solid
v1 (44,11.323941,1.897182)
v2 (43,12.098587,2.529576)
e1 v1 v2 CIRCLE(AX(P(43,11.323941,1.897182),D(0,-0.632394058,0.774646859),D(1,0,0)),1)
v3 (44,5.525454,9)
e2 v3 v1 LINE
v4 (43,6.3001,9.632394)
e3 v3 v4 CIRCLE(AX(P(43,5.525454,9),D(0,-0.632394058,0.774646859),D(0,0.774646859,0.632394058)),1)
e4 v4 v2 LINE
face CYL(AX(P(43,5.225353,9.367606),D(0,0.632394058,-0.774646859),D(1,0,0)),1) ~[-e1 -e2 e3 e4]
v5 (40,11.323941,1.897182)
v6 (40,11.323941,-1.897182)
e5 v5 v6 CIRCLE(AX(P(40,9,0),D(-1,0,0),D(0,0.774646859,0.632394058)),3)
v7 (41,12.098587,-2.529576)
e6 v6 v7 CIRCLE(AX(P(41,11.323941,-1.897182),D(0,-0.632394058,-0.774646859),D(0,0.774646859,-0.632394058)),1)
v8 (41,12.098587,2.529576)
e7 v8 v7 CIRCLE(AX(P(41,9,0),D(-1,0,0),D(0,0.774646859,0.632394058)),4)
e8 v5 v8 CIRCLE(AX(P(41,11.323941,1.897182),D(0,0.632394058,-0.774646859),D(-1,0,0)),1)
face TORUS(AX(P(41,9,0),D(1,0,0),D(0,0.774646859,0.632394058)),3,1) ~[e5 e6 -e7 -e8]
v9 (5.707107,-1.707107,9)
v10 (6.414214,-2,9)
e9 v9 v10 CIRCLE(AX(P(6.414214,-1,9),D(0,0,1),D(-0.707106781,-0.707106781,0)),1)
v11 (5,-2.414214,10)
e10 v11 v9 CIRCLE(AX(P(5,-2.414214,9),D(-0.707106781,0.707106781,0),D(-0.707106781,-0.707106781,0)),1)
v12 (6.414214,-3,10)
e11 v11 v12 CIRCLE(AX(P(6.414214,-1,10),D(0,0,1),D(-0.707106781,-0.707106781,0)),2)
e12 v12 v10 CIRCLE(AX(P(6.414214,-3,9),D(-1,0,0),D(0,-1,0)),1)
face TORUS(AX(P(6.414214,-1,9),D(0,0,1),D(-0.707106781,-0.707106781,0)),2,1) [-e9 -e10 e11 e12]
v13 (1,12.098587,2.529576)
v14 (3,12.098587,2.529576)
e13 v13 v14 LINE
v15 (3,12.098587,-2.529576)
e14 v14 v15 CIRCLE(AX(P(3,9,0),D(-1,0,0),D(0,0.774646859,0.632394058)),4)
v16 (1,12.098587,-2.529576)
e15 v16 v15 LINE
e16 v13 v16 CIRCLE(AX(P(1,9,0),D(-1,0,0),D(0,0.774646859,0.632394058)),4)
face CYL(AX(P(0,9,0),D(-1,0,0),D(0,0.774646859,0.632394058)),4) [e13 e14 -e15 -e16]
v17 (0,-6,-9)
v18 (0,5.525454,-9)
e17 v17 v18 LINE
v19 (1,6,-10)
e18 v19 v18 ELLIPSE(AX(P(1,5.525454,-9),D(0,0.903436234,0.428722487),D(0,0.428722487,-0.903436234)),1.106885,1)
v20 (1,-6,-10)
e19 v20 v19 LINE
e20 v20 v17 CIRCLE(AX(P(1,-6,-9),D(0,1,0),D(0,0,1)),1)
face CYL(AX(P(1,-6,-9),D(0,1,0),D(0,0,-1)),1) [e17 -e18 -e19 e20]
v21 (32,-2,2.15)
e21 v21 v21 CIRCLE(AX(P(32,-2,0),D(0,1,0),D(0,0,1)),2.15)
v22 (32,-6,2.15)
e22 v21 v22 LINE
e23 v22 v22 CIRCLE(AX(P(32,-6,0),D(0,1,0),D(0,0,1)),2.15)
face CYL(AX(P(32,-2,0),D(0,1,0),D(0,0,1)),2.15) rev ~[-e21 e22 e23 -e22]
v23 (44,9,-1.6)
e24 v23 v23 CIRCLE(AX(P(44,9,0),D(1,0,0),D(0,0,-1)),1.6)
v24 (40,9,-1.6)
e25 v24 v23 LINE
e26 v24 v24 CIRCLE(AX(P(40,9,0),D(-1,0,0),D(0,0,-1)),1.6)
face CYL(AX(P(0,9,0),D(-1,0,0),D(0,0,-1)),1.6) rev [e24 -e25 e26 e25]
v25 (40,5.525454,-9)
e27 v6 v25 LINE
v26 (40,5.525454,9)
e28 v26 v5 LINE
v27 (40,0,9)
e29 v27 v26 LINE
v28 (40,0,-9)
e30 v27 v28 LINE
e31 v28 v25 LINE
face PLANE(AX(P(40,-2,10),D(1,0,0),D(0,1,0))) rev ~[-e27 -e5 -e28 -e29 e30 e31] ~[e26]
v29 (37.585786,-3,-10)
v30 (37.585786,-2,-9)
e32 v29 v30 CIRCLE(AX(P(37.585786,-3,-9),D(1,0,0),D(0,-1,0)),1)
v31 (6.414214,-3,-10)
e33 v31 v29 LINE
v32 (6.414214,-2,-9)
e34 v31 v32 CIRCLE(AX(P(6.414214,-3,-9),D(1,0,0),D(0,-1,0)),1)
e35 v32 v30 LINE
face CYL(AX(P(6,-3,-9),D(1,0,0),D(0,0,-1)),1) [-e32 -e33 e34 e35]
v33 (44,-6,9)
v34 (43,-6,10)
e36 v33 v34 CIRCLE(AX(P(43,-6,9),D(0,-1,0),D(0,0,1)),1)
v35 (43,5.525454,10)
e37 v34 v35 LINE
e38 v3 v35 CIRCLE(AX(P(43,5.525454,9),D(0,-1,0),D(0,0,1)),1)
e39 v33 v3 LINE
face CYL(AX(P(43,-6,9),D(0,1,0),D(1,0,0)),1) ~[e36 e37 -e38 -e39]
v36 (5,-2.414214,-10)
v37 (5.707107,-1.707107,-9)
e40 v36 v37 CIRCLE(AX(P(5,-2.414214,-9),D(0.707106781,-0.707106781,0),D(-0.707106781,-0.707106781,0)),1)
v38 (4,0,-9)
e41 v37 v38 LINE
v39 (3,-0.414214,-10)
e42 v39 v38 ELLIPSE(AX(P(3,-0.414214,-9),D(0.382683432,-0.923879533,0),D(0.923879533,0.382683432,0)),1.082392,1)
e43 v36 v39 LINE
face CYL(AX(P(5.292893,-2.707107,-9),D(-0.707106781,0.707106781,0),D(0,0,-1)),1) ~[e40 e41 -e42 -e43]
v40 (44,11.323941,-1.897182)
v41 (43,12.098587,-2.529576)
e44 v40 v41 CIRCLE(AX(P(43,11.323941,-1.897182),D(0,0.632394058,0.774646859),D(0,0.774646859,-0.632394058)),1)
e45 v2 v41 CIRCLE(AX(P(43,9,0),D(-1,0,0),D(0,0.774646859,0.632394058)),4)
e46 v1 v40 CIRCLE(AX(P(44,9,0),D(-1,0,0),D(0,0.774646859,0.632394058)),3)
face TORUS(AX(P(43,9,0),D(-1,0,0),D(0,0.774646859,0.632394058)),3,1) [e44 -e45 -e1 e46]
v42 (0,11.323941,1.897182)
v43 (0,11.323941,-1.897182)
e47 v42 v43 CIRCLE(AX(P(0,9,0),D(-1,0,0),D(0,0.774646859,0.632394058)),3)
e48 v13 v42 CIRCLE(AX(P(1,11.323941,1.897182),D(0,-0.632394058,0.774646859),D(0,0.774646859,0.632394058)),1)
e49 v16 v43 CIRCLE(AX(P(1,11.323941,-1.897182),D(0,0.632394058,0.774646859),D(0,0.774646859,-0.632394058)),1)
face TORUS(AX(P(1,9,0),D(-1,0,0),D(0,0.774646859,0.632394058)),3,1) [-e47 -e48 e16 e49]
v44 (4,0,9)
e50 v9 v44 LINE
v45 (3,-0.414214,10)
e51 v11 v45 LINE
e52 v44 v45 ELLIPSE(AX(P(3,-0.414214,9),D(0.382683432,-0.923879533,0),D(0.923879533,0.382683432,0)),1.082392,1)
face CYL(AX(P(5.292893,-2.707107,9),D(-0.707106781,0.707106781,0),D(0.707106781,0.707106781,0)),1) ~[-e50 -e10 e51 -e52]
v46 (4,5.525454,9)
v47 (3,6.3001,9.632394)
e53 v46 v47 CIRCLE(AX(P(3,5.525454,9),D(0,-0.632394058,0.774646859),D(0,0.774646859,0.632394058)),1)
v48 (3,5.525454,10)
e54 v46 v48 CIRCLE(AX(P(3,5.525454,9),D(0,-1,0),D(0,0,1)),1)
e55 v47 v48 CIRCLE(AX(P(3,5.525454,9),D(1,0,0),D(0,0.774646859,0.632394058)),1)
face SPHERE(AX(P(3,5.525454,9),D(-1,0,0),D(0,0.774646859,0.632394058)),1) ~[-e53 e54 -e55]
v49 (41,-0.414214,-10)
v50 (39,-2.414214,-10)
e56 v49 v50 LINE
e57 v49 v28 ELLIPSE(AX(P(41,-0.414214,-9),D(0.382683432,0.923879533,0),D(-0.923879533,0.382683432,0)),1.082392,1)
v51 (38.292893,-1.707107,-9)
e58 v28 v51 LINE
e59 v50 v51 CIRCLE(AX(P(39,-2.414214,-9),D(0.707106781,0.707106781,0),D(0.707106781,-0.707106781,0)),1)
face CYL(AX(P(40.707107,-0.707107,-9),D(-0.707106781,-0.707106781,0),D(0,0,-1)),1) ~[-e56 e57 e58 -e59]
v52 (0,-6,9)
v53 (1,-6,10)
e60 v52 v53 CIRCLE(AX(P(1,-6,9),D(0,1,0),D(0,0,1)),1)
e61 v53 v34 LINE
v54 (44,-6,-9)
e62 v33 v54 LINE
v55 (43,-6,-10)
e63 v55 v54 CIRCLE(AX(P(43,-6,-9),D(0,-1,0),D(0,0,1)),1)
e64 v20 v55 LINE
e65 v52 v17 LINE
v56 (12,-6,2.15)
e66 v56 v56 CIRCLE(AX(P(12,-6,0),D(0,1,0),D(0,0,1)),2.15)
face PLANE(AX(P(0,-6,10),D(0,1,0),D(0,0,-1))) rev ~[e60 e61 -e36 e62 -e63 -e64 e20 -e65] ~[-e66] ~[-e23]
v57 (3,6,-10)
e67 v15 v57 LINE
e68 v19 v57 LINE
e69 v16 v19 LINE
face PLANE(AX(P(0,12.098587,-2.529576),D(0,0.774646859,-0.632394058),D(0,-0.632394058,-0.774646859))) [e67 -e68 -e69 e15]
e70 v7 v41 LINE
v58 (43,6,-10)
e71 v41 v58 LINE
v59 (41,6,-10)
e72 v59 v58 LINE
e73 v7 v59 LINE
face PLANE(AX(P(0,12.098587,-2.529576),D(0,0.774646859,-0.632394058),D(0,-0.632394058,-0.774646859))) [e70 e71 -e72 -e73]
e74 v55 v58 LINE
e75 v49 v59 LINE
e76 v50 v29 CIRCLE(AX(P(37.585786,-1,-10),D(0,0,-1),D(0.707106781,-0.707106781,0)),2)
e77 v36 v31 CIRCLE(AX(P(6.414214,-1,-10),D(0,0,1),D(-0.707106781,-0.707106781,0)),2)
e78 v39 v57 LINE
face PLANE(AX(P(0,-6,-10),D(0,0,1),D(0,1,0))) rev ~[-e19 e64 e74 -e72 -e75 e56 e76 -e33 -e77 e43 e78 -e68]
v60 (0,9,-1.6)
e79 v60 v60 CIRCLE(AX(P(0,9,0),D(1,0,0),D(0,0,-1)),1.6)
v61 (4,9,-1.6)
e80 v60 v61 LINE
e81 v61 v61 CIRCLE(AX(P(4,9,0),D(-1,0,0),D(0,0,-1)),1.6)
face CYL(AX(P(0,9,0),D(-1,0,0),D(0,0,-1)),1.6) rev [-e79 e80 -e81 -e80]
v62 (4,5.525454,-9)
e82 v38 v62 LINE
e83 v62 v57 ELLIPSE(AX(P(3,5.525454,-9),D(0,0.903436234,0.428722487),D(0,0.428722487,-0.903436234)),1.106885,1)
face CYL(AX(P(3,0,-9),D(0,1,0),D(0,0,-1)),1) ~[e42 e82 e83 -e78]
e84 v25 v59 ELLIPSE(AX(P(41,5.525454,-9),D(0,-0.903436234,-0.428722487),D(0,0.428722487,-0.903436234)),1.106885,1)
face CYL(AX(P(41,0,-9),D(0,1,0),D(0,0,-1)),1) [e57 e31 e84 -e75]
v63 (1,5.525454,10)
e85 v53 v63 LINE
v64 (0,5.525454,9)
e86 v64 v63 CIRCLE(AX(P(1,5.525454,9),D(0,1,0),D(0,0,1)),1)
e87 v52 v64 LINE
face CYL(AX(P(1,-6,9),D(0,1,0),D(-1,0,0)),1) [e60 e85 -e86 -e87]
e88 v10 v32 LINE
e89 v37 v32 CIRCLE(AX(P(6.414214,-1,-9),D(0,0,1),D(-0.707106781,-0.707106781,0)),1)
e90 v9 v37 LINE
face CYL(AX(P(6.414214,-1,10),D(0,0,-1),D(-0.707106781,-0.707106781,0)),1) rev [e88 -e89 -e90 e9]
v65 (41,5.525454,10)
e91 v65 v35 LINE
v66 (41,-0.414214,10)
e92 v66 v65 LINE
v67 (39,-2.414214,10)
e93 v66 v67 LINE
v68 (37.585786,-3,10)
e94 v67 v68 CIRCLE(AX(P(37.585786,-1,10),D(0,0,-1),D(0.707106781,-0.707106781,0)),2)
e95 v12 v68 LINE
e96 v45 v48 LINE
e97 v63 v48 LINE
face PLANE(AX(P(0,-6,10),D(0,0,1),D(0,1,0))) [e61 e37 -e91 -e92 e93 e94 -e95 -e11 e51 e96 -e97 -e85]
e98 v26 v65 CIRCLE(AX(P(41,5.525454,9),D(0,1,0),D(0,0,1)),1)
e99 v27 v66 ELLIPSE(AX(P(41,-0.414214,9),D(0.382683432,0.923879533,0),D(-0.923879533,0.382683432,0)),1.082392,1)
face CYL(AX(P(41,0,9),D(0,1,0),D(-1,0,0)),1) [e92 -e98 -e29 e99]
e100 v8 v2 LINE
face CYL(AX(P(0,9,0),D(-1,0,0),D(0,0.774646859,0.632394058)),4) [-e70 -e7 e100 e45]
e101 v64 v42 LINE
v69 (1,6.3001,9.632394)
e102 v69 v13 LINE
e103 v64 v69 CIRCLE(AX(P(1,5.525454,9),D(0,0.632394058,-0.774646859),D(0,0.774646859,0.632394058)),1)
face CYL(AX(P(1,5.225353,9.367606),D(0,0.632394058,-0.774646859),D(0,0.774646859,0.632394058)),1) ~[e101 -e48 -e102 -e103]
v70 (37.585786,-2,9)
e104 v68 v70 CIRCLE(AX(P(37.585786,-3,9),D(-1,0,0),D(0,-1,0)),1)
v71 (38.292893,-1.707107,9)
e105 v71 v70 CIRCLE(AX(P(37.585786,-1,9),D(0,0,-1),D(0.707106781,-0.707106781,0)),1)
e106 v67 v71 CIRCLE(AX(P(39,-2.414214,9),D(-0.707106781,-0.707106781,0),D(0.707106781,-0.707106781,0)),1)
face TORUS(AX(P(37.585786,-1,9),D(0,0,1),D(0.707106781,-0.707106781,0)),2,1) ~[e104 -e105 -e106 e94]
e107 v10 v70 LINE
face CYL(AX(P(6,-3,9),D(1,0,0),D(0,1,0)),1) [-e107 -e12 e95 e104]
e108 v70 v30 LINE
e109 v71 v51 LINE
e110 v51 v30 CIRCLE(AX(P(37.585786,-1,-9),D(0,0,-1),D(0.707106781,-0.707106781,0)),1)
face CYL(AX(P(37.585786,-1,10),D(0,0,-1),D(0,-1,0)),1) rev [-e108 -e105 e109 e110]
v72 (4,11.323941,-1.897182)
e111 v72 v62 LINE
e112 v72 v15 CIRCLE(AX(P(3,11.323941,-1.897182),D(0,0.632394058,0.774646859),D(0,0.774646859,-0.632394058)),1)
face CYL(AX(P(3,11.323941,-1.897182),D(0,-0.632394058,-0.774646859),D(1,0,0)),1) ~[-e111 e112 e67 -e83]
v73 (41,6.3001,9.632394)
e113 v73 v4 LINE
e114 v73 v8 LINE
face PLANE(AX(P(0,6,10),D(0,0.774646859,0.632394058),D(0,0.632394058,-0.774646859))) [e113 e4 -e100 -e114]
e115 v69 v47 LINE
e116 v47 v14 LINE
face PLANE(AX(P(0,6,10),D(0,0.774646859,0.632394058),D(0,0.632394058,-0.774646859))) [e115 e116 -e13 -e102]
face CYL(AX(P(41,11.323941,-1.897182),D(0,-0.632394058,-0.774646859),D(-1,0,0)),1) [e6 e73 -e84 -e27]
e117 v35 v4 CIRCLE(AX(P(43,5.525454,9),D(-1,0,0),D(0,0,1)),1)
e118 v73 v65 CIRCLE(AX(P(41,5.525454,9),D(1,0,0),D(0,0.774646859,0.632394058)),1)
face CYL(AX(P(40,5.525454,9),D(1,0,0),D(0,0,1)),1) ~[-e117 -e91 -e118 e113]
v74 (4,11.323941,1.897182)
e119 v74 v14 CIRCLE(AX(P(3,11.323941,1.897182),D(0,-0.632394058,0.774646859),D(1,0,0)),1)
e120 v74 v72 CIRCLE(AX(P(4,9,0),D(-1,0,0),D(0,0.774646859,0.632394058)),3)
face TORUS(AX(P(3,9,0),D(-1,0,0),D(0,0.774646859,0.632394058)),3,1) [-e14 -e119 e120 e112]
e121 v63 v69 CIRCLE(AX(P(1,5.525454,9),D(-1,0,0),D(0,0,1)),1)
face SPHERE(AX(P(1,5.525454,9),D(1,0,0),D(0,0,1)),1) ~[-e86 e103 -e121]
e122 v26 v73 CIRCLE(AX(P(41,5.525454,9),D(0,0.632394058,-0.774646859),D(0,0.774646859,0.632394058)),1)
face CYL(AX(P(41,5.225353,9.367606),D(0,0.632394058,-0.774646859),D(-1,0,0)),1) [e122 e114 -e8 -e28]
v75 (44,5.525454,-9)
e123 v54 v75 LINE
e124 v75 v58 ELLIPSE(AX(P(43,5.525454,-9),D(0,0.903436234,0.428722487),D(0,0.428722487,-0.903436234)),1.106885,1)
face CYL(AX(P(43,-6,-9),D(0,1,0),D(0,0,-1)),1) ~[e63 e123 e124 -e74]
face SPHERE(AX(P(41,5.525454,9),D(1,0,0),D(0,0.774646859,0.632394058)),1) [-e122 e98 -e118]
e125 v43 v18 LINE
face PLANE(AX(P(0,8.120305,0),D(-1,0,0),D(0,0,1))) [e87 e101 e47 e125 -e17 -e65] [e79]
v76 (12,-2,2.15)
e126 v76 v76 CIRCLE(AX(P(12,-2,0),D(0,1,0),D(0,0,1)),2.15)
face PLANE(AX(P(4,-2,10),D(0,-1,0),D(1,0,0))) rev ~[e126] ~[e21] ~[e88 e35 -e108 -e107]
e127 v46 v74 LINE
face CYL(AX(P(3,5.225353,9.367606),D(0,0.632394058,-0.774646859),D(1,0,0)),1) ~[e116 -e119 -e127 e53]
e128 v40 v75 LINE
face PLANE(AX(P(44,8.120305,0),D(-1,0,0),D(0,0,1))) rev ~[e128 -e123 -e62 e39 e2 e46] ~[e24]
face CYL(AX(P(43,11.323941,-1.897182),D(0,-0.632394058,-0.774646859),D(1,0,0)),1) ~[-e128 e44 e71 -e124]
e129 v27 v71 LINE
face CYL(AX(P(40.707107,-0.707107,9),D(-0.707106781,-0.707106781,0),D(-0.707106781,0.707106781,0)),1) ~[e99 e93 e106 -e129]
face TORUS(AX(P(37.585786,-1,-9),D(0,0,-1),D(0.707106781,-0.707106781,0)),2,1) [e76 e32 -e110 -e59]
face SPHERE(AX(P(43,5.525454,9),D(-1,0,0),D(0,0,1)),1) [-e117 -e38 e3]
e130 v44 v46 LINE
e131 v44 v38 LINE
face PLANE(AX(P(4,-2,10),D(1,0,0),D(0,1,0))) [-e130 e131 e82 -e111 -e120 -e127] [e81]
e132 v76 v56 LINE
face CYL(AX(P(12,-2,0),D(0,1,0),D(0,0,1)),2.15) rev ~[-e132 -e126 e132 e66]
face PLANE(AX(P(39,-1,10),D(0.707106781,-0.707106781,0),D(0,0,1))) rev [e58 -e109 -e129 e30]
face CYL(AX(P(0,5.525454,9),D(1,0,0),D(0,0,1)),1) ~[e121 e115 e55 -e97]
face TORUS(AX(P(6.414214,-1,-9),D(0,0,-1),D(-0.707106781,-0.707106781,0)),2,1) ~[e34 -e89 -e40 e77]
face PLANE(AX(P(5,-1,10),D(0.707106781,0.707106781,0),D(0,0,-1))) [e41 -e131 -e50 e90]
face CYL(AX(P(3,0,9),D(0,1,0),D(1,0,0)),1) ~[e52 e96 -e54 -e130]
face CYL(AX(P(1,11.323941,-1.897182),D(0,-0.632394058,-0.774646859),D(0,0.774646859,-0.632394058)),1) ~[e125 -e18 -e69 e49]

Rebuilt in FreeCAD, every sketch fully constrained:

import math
import FreeCAD as App
import Part
import Sketcher

V = App.Vector
Q = App.Units.Quantity


def edges_at(feature, points):
    """Names of the edges that pass closest to the given points."""
    edges = feature.Shape.Edges
    near = lambda p: min(range(len(edges)), key=lambda i: edges[i].distToShape(Part.Vertex(*p))[0])
    return sorted({f"Edge{near(p) + 1}" for p in points})


def add_polygon(sketch, points):
    """Adds a closed chain of lines whose ends are joined by coincident constraints."""
    first, n = sketch.GeometryCount, len(points)
    for a, b in zip(points, points[1:] + points[:1]):
        sketch.addGeometry(Part.LineSegment(App.Vector(*a, 0), App.Vector(*b, 0)), False)
    for i in range(n):
        sketch.addConstraint(Sketcher.Constraint("Coincident", first + i, 2, first + (i + 1) % n, 1))

doc = App.newDocument("Part")
body = doc.addObject("PartDesign::Body", "Body")

# Sketch on YZ plane
sketch1 = body.newObject("Sketcher::SketchObject", "Sketch")
sketch1.AttachmentSupport = (doc.getObject("YZ_Plane"), [""])
sketch1.MapMode = "FlatFace"
sketch1.addGeometry([
    Part.LineSegment(V(6, 10, 0), V(-6, 10, 0)),  # 0
    Part.LineSegment(V(-6, 10, 0), V(-6, -10, 0)),  # 1
    Part.LineSegment(V(-6, -10, 0), V(6, -10, 0)),  # 2
    Part.LineSegment(V(6, -10, 0), V(12.098587, -2.529576, 0)),  # 3
    Part.ArcOfCircle(Part.Circle(V(9, 0, 0), V(0, 0, 1), 4), math.radians(-39.226973), math.radians(39.226973)),  # 4
    Part.LineSegment(V(12.098587, 2.529576, 0), V(6, 10, 0)),  # 5
    Part.Circle(V(9, 0, 0), V(0, 0, 1), 1.6),  # 6
], False)
sketch1.addConstraint([
    Sketcher.Constraint("Coincident", 0, 2, 1, 1),
    Sketcher.Constraint("Coincident", 1, 2, 2, 1),
    Sketcher.Constraint("Coincident", 2, 2, 3, 1),
    Sketcher.Constraint("Tangent", 3, 2, 4, 1),
    Sketcher.Constraint("Tangent", 4, 2, 5, 1),
    Sketcher.Constraint("Coincident", 5, 2, 0, 1),
    Sketcher.Constraint("Horizontal", 0),
    Sketcher.Constraint("Vertical", 1),
    Sketcher.Constraint("Horizontal", 2),
    Sketcher.Constraint("Coincident", 6, 3, 4, 3),
    Sketcher.Constraint("Symmetric", 0, 2, 2, 2, -1, 1),
    Sketcher.Constraint("Symmetric", 3, 2, 4, 2, -1),
    Sketcher.Constraint("Radius", 4, Q("4 mm")),
    Sketcher.Constraint("Diameter", 6, Q("3.2 mm")),
    Sketcher.Constraint("DistanceX", 0, 2, 0, 1, Q("12 mm")),
    Sketcher.Constraint("DistanceY", 1, 2, 1, 1, Q("20 mm")),
    Sketcher.Constraint("DistanceX", -1, 1, 4, 3, Q("9 mm")),
])
pad1 = body.newObject("PartDesign::Pad", "Pad")
pad1.Profile = sketch1
pad1.Length = 44

# Sketch on XY plane
sketch2 = body.newObject("Sketcher::SketchObject", "Sketch001")
sketch2.AttachmentSupport = (doc.getObject("XY_Plane"), [""])
sketch2.MapMode = "FlatFace"
sketch2.AttachmentOffset = App.Placement(V(0, 0, 10), App.Rotation())
add_polygon(sketch2, [(4, 13), (4, -2), (40, -2), (40, 13)])  # lines 0-3
sketch2.addConstraint([
    Sketcher.Constraint("Vertical", 0),
    Sketcher.Constraint("Horizontal", 1),
    Sketcher.Constraint("Vertical", 2),
    Sketcher.Constraint("Horizontal", 3),
    Sketcher.Constraint("DistanceX", 1, 1, 1, 2, Q("36 mm")),
    Sketcher.Constraint("DistanceY", 0, 2, 0, 1, Q("15 mm")),
    Sketcher.Constraint("DistanceX", -1, 1, 0, 2, Q("4 mm")),
    Sketcher.Constraint("DistanceY", 0, 2, -1, 1, Q("2 mm")),
])
pocket1 = body.newObject("PartDesign::Pocket", "Pocket")
pocket1.Profile = sketch2
pocket1.Type = "ThroughAll"
doc.recompute()

chamfer = body.newObject("PartDesign::Chamfer", "Chamfer")
chamfer.Base = (pocket1, edges_at(pocket1, [(4, -2, 0), (40, -2, 0)]))
chamfer.Size = 2
doc.recompute()

fillet = body.newObject("PartDesign::Fillet", "Fillet")
fillet.Base = (chamfer, edges_at(chamfer, [
    (0, 9.049, -6.265),
    (0, 0, -10),
    (44, 9.049, -6.265),
    (42, 6, 10),
    (44, 13, 0),
    (44, 9.049, 6.265),
    (2, 6, 10),
    (44, 0, 10),
    (4, 9.049, -6.265),
    (4, 3, -10),
    (4, 13, 0),
    (4, 9.049, 6.265),
    (40, 9.049, -6.265),
    (40, 9.049, 6.265),
    (40, 13, 0),
    (4, 3, 10),
    (40, 3, -10),
    (40, 3, 10),
    (22, -2, 10),
    (22, -2, -10),
    (6, -2, 0),
    (38, -2, 0),
    (39, -1, 10),
    (39, -1, -10),
    (5, -1, 10),
    (5, -1, -10),
    (0, 0, 10),
    (44, 0, -10),
    (0, 9.049, 6.265),
    (0, 13, 0),
]))
fillet.Radius = 1

# Sketch on XZ plane
sketch3 = body.newObject("Sketcher::SketchObject", "Sketch002")
sketch3.AttachmentSupport = (doc.getObject("XZ_Plane"), [""])
sketch3.MapMode = "FlatFace"
sketch3.AttachmentOffset = App.Placement(V(0, 0, 2), App.Rotation())
sketch3.addGeometry([
    Part.Circle(V(12, 0, 0), V(0, 0, 1), 2.15),
    Part.Circle(V(32, 0, 0), V(0, 0, 1), 2.15),
], False)
sketch3.addConstraint([
    Sketcher.Constraint("Equal", 0, 1),
    Sketcher.Constraint("PointOnObject", 0, 3, -1),
    Sketcher.Constraint("PointOnObject", 1, 3, -1),
    Sketcher.Constraint("Diameter", 0, Q("4.3 mm")),
    Sketcher.Constraint("DistanceX", -1, 1, 0, 3, Q("12 mm")),
    Sketcher.Constraint("DistanceX", -1, 1, 1, 3, Q("32 mm")),
])
pocket2 = body.newObject("PartDesign::Pocket", "Pocket001")
pocket2.Profile = sketch3
pocket2.Type = "ThroughAll"
pocket2.Reversed = True

doc.recompute()
